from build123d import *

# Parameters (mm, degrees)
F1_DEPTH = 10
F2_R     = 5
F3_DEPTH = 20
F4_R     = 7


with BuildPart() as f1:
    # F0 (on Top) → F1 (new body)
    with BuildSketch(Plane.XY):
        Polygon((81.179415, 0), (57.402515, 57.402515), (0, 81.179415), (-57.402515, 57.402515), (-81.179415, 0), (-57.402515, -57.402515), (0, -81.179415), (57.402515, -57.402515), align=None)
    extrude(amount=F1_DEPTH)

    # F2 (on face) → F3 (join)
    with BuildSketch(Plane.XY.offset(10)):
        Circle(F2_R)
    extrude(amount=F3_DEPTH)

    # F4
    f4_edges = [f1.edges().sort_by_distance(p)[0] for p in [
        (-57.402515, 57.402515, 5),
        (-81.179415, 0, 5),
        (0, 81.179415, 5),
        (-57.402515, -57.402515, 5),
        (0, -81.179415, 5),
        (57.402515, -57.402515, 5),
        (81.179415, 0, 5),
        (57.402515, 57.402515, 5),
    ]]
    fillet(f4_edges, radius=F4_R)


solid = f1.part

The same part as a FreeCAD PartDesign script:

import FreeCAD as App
import Part
import Sketcher
from FreeCAD import Vector
Q = App.Units.Quantity


def edges_at(feature, points):
    """Names of the edges that pass closest to the given points."""
    edges = feature.Shape.Edges
    near = lambda p: min(range(len(edges)), key=lambda i: edges[i].distToShape(Part.Vertex(*p))[0])
    return sorted({f"Edge{near(p) + 1}" for p in points})


def add_polygon(sketch, points):
    """Adds a closed chain of lines whose ends are joined by coincident constraints."""
    first, n = sketch.GeometryCount, len(points)
    for a, b in zip(points, points[1:] + points[:1]):
        sketch.addGeometry(Part.LineSegment(App.Vector(*a, 0), App.Vector(*b, 0)), False)
    for i in range(n):
        sketch.addConstraint(Sketcher.Constraint("Coincident", first + i, 2, first + (i + 1) % n, 1))

doc = App.newDocument("Part")
params = doc.addObject("Spreadsheet::Sheet", "Params")
for row, (alias, value) in enumerate([
    ("pad1_length", "10 mm"),
    ("sketch2_diameter", "10 mm"),
    ("pad2_length", "20 mm"),
    ("fillet_radius", "7 mm"),
], start=1):
    params.set(f"A{row}", alias)
    params.set(f"B{row}", "=" + value)
    params.setAlias(f"B{row}", alias)

body = doc.addObject("PartDesign::Body", "Body")

sketch1 = doc.addObject("Sketcher::SketchObject", "Sketch")
body.addObject(sketch1)
sketch1.AttachmentSupport = (doc.XY_Plane, [""])
sketch1.MapMode = "FlatFace"
add_polygon(sketch1, [(81.179415, 0), (57.402515, 57.402515), (0, 81.179415), (-57.402515, 57.402515), (-81.179415, 0), (-57.402515, -57.402515), (0, -81.179415), (57.402515, -57.402515)])
sketch1.addConstraint(Sketcher.Constraint("Symmetric", 0, 2, 4, 2, -1, 1))
sketch1.addConstraint(Sketcher.Constraint("Symmetric", 1, 2, 5, 2, -1, 1))
sketch1.addConstraint(Sketcher.Constraint("Symmetric", 2, 2, 6, 2, -1, 1))
sketch1.addConstraint(Sketcher.Constraint("Symmetric", 3, 2, 7, 2, -1, 1))
sketch1.addConstraint(Sketcher.Constraint("Symmetric", 0, 2, 2, 2, -2))
sketch1.addConstraint(Sketcher.Constraint("PointOnObject", 1, 2, -2))
sketch1.addConstraint(Sketcher.Constraint("PointOnObject", 3, 2, -1))
sketch1.addConstraint(Sketcher.Constraint("Perpendicular", 0, 2))
sketch1.addConstraint(Sketcher.Constraint("Equal", 0, 1))
sketch1.addConstraint(Sketcher.Constraint("Angle", 0, Q("112.5 deg")))
sketch1.addConstraint(Sketcher.Constraint("DistanceY", 0, 2, 1, 2, Q("23.7769 mm")))
pad1 = doc.addObject("PartDesign::Pad", "Pad")
body.addObject(pad1)
pad1.Profile = sketch1
pad1.setExpression("Length", "Params.pad1_length")

sketch2 = doc.addObject("Sketcher::SketchObject", "Sketch001")
body.addObject(sketch2)
sketch2.AttachmentSupport = (doc.XY_Plane, [""])
sketch2.MapMode = "FlatFace"
sketch2.AttachmentOffset = App.Placement(Vector(0, 0, 10), App.Rotation())
sketch2.addGeometry(Part.Circle(Vector(0, 0, 0), Vector(0, 0, 1), 5), False)
sketch2.addConstraint(Sketcher.Constraint("Coincident", 0, 3, -1, 1))
sketch2.addConstraint(Sketcher.Constraint("Diameter", 0, Q("10 mm")))
sketch2.setExpression("Constraints[1]", "Params.sketch2_diameter")
pad2 = doc.addObject("PartDesign::Pad", "Pad001")
body.addObject(pad2)
pad2.Profile = sketch2
pad2.setExpression("Length", "Params.pad2_length")
doc.recompute()

fillet = doc.addObject("PartDesign::Fillet", "Fillet")
body.addObject(fillet)
fillet.Base = (pad2, edges_at(pad2, [
    (-57.403, 57.403, 5),
    (-81.179, 0, 5),
    (0, 81.179, 5),
    (-57.403, -57.403, 5),
    (0, -81.179, 5),
    (57.403, -57.403, 5),
    (81.179, 0, 5),
    (57.403, 57.403, 5),
]))
fillet.setExpression("Radius", "Params.fillet_radius")

doc.recompute()
